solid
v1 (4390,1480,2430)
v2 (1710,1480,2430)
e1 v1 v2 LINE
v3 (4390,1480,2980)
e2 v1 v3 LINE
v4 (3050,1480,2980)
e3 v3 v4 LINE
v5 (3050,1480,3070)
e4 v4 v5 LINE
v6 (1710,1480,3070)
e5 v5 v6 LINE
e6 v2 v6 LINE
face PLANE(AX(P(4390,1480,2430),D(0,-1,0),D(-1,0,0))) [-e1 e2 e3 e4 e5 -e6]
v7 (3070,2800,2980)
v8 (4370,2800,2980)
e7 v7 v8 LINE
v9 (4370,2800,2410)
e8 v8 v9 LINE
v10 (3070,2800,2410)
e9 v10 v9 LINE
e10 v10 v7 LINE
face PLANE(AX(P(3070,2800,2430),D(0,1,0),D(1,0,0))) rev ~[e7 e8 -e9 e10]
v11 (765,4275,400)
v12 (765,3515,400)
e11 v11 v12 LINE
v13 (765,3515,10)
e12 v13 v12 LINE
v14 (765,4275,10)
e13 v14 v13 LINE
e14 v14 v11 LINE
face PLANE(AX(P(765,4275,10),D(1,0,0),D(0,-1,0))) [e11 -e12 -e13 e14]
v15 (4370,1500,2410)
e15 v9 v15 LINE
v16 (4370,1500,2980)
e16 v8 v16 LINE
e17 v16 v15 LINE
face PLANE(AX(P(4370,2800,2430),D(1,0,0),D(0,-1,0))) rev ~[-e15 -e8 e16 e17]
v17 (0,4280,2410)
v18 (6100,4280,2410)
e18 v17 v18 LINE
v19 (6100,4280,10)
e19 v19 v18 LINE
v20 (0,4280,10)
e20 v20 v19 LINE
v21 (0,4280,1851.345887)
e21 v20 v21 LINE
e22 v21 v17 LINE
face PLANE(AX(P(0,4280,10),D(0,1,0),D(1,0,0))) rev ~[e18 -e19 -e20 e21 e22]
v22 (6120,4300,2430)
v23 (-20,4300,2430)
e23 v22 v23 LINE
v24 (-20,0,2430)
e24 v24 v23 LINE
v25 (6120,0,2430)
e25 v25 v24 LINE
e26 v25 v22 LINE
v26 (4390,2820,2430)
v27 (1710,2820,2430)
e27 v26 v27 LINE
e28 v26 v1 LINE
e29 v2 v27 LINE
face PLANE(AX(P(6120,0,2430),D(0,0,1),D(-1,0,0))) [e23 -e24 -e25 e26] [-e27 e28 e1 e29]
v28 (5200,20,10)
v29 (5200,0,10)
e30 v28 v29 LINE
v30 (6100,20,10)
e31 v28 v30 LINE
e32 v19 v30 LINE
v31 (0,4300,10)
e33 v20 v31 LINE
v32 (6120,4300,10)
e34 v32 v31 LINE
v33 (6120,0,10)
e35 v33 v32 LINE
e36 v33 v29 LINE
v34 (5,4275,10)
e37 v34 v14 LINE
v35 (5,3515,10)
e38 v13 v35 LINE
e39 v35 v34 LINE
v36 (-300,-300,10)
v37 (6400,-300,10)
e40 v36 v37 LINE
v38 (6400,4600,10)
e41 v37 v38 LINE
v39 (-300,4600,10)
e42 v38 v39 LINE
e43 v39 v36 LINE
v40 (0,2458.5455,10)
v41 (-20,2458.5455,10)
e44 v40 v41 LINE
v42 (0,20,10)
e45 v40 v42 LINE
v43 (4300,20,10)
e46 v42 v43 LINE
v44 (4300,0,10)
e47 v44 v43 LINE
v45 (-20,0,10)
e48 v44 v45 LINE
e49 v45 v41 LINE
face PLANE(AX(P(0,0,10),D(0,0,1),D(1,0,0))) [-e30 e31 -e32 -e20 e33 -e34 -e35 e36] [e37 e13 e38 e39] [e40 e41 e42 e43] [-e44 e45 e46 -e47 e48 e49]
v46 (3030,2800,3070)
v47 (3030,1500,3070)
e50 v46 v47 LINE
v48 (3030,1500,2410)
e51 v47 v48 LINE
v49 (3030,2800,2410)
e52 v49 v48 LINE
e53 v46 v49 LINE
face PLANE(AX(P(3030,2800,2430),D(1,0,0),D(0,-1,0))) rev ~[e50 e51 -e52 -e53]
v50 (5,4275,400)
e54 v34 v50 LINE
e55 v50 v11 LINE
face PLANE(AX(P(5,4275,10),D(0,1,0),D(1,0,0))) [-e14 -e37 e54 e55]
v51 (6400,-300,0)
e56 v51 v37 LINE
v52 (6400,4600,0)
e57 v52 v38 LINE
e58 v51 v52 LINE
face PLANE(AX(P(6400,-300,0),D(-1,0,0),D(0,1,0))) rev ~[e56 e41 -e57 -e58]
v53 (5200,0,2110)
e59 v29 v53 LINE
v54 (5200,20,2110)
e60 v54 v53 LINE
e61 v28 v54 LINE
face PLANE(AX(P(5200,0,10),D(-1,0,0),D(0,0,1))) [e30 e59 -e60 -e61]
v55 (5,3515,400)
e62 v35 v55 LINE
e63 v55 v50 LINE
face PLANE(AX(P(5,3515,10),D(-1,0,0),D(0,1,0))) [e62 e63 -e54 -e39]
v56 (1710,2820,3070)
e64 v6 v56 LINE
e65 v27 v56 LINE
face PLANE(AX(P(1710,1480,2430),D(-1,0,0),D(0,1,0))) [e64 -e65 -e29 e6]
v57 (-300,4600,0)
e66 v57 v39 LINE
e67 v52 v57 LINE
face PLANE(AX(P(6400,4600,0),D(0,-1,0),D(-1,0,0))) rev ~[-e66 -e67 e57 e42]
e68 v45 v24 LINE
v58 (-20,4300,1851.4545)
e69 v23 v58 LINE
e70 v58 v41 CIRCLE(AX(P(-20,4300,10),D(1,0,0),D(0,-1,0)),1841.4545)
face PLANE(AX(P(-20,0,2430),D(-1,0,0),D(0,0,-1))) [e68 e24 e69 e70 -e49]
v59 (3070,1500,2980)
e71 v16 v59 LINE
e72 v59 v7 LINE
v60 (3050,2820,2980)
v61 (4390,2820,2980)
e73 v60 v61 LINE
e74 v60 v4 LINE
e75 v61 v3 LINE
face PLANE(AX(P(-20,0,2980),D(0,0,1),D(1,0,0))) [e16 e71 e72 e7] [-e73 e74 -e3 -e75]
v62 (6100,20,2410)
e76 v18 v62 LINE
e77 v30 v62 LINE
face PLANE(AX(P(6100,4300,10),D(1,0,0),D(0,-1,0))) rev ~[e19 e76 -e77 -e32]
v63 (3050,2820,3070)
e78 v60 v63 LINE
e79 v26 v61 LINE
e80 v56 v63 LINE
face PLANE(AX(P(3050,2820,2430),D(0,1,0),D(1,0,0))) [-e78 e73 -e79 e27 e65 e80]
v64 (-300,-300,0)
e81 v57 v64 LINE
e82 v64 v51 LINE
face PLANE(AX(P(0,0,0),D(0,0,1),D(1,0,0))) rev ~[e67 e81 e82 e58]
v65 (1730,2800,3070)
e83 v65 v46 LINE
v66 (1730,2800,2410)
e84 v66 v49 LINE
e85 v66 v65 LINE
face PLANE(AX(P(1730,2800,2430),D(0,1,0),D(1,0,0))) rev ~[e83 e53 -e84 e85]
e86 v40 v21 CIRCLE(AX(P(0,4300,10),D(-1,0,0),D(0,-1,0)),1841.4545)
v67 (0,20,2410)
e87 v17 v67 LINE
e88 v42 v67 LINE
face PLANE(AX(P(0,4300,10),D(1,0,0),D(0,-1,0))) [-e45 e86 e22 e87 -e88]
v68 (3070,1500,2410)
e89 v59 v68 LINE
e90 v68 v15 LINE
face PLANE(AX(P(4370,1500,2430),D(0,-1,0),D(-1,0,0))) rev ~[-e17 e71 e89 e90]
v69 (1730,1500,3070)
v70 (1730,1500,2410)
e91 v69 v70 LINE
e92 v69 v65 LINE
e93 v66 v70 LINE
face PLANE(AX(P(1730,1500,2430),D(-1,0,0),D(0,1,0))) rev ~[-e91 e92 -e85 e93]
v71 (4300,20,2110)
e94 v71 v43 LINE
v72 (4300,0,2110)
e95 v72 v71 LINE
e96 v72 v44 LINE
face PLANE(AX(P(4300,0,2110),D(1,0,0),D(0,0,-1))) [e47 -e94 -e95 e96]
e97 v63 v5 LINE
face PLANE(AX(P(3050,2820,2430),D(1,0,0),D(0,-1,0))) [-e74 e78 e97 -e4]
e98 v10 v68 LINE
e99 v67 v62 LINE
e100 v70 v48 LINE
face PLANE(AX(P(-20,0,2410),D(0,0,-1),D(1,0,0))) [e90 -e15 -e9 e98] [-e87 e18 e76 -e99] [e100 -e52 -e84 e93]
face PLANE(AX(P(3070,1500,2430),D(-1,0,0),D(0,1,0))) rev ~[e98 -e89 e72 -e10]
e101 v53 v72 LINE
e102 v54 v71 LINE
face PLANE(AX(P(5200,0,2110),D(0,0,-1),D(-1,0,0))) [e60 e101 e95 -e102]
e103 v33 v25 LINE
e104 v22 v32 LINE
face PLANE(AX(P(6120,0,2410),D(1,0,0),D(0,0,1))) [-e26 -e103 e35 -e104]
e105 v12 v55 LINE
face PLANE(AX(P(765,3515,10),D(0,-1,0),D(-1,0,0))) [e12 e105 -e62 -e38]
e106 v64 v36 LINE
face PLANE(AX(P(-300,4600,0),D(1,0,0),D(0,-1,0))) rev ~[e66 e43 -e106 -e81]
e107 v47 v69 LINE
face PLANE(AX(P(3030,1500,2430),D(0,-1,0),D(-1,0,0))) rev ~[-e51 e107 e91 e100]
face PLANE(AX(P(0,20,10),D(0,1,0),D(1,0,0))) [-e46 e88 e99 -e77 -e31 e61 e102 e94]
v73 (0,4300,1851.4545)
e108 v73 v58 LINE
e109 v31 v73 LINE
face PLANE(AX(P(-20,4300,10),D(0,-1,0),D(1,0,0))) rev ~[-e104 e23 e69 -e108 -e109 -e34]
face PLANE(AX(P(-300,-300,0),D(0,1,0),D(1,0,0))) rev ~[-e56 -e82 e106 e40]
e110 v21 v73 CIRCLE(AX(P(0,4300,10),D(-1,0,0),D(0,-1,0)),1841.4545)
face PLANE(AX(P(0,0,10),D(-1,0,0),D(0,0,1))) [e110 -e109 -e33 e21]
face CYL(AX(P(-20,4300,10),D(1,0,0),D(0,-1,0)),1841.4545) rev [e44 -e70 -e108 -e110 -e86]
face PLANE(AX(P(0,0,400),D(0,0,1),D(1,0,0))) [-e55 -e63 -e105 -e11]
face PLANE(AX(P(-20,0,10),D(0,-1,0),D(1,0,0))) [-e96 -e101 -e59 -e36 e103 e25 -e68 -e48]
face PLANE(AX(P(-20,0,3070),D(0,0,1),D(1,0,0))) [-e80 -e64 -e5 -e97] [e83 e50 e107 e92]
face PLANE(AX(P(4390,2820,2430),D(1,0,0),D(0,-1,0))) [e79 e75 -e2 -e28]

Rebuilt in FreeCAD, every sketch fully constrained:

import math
import FreeCAD as App
import Part
import Sketcher
from FreeCAD import Vector
Q = App.Units.Quantity


def add_polygon(sketch, points):
    """Adds a closed chain of lines whose ends are joined by coincident constraints."""
    first, n = sketch.GeometryCount, len(points)
    for a, b in zip(points, points[1:] + points[:1]):
        sketch.addGeometry(Part.LineSegment(App.Vector(*a, 0), App.Vector(*b, 0)), False)
    for i in range(n):
        sketch.addConstraint(Sketcher.Constraint("Coincident", first + i, 2, first + (i + 1) % n, 1))

doc = App.newDocument("Part")
body = doc.addObject("PartDesign::Body", "Body")

# Sketch on XY plane
sketch1 = body.newObject("Sketcher::SketchObject", "Sketch")
sketch1.AttachmentSupport = (doc.getObject("XY_Plane"), [""])
sketch1.MapMode = "FlatFace"
add_polygon(sketch1, [(-300, 4600), (-300, -300), (6400, -300), (6400, 4600)])  # lines 0-3
sketch1.addConstraint([
    Sketcher.Constraint("Vertical", 0),
    Sketcher.Constraint("Horizontal", 1),
    Sketcher.Constraint("Vertical", 2),
    Sketcher.Constraint("Horizontal", 3),
    Sketcher.Constraint("DistanceX", 1, 1, 1, 2, Q("6700 mm")),
    Sketcher.Constraint("DistanceY", 0, 2, 0, 1, Q("4900 mm")),
    Sketcher.Constraint("DistanceX", 0, 2, -1, 1, Q("300 mm")),
    Sketcher.Constraint("DistanceY", 0, 2, -1, 1, Q("300 mm")),
])
pad1 = body.newObject("PartDesign::Pad", "Pad")
pad1.Profile = sketch1
pad1.Length = 10

# Sketch on XY plane
sketch2 = body.newObject("Sketcher::SketchObject", "Sketch001")
sketch2.AttachmentSupport = (doc.getObject("XY_Plane"), [""])
sketch2.MapMode = "FlatFace"
sketch2.AttachmentOffset = App.Placement(Vector(0, 0, 10), App.Rotation())
add_polygon(sketch2, [(0, 4300), (-20, 4300), (-20, 0), (0, 0)])  # lines 0-3
sketch2.addConstraint([
    Sketcher.Constraint("Horizontal", 0),
    Sketcher.Constraint("Vertical", 1),
    Sketcher.Constraint("Horizontal", 2),
    Sketcher.Constraint("Vertical", 3),
    Sketcher.Constraint("Coincident", 2, 2, -1, 1),
    Sketcher.Constraint("DistanceX", 0, 2, 0, 1, Q("20 mm")),
    Sketcher.Constraint("DistanceY", 1, 2, 1, 1, Q("4300 mm")),
])
pad2 = body.newObject("PartDesign::Pad", "Pad001")
pad2.Profile = sketch2
pad2.Length = 2400

# Sketch on XY plane
sketch3 = body.newObject("Sketcher::SketchObject", "Sketch002")
sketch3.AttachmentSupport = (doc.getObject("XY_Plane"), [""])
sketch3.MapMode = "FlatFace"
sketch3.AttachmentOffset = App.Placement(Vector(0, 0, 10), App.Rotation())
add_polygon(sketch3, [(6100, 20), (0, 20), (0, 0), (6100, 0)])  # lines 0-3
sketch3.addConstraint([
    Sketcher.Constraint("Horizontal", 0),
    Sketcher.Constraint("Vertical", 1),
    Sketcher.Constraint("Horizontal", 2),
    Sketcher.Constraint("Vertical", 3),
    Sketcher.Constraint("Coincident", 1, 2, -1, 1),
    Sketcher.Constraint("DistanceX", 0, 2, 0, 1, Q("6100 mm")),
    Sketcher.Constraint("DistanceY", 1, 2, 1, 1, Q("20 mm")),
])
pad3 = body.newObject("PartDesign::Pad", "Pad002")
pad3.Profile = sketch3
pad3.Length = 2400

# Sketch on XY plane
sketch4 = body.newObject("Sketcher::SketchObject", "Sketch003")
sketch4.AttachmentSupport = (doc.getObject("XY_Plane"), [""])
sketch4.MapMode = "FlatFace"
sketch4.AttachmentOffset = App.Placement(Vector(0, 0, 10), App.Rotation())
add_polygon(sketch4, [(6100, 4300), (6100, 0), (6120, 0), (6120, 4300)])  # lines 0-3
sketch4.addConstraint([
    Sketcher.Constraint("Vertical", 0),
    Sketcher.Constraint("Horizontal", 1),
    Sketcher.Constraint("Vertical", 2),
    Sketcher.Constraint("Horizontal", 3),
    Sketcher.Constraint("PointOnObject", 0, 2, -1),
    Sketcher.Constraint("DistanceX", 1, 1, 1, 2, Q("20 mm")),
    Sketcher.Constraint("DistanceY", 0, 2, 0, 1, Q("4300 mm")),
    Sketcher.Constraint("DistanceX", -1, 1, 0, 2, Q("6100 mm")),
])
pad4 = body.newObject("PartDesign::Pad", "Pad003")
pad4.Profile = sketch4
pad4.Length = 2400

# Sketch on XY plane
sketch5 = body.newObject("Sketcher::SketchObject", "Sketch004")
sketch5.AttachmentSupport = (doc.getObject("XY_Plane"), [""])
sketch5.MapMode = "FlatFace"
sketch5.AttachmentOffset = App.Placement(Vector(0, 0, 10), App.Rotation())
add_polygon(sketch5, [(6120, 4300), (0, 4300), (0, 4280), (6120, 4280)])  # lines 0-3
sketch5.addConstraint([
    Sketcher.Constraint("Horizontal", 0),
    Sketcher.Constraint("Vertical", 1),
    Sketcher.Constraint("Horizontal", 2),
    Sketcher.Constraint("Vertical", 3),
    Sketcher.Constraint("PointOnObject", 0, 2, -2),
    Sketcher.Constraint("DistanceY", 1, 2, 1, 1, Q("20 mm")),
    Sketcher.Constraint("DistanceX", 0, 2, 0, 1, Q("6120 mm")),
    Sketcher.Constraint("DistanceY", -1, 1, 0, 2, Q("4300 mm")),
])
pad5 = body.newObject("PartDesign::Pad", "Pad004")
pad5.Profile = sketch5
pad5.Length = 2400

# Sketch on XZ plane
sketch6 = body.newObject("Sketcher::SketchObject", "Sketch005")
sketch6.AttachmentSupport = (doc.getObject("XZ_Plane"), [""])
sketch6.MapMode = "FlatFace"
add_polygon(sketch6, [(4300, 10), (5200, 10), (5200, 2110), (4300, 2110)])  # lines 0-3
sketch6.addConstraint([
    Sketcher.Constraint("Horizontal", 0),
    Sketcher.Constraint("Vertical", 1),
    Sketcher.Constraint("Horizontal", 2),
    Sketcher.Constraint("Vertical", 3),
    Sketcher.Constraint("DistanceX", 0, 1, 0, 2, Q("900 mm")),
    Sketcher.Constraint("DistanceY", 1, 1, 1, 2, Q("2100 mm")),
    Sketcher.Constraint("DistanceX", -1, 1, 2, 2, Q("4300 mm")),
    Sketcher.Constraint("DistanceY", -1, 1, 0, 2, Q("10 mm")),
])
pocket1 = body.newObject("PartDesign::Pocket", "Pocket")
pocket1.Profile = sketch6
pocket1.Length = 40
pocket1.Midplane = True

# Sketch on XY plane
sketch7 = body.newObject("Sketcher::SketchObject", "Sketch006")
sketch7.AttachmentSupport = (doc.getObject("XY_Plane"), [""])
sketch7.MapMode = "FlatFace"
sketch7.AttachmentOffset = App.Placement(Vector(0, 0, 10), App.Rotation())
add_polygon(sketch7, [(765, 4275), (5, 4275), (5, 3515), (765, 3515)])  # lines 0-3
sketch7.addConstraint([
    Sketcher.Constraint("Horizontal", 0),
    Sketcher.Constraint("Vertical", 1),
    Sketcher.Constraint("Horizontal", 2),
    Sketcher.Constraint("Vertical", 3),
    Sketcher.Constraint("Equal", 2, 1),
    Sketcher.Constraint("DistanceX", 0, 2, 0, 1, Q("760 mm")),
    Sketcher.Constraint("DistanceX", -1, 1, 0, 2, Q("5 mm")),
    Sketcher.Constraint("DistanceY", -1, 1, 0, 2, Q("4275 mm")),
])
pad6 = body.newObject("PartDesign::Pad", "Pad005")
pad6.Profile = sketch7
pad6.Length = 390

# Sketch on XZ plane
sketch8 = body.newObject("Sketcher::SketchObject", "Sketch007")
sketch8.AttachmentSupport = (doc.getObject("XZ_Plane"), [""])
sketch8.MapMode = "FlatFace"
add_polygon(sketch8, [(-20, 2430), (-20, 2410), (6120, 2410), (6120, 2430)])  # lines 0-3
sketch8.addConstraint([
    Sketcher.Constraint("Vertical", 0),
    Sketcher.Constraint("Horizontal", 1),
    Sketcher.Constraint("Vertical", 2),
    Sketcher.Constraint("Horizontal", 3),
    Sketcher.Constraint("DistanceY", 0, 2, 0, 1, Q("20 mm")),
    Sketcher.Constraint("DistanceX", 0, 2, -1, 1, Q("20 mm")),
    Sketcher.Constraint("DistanceX", 1, 1, 1, 2, Q("6140 mm")),
    Sketcher.Constraint("DistanceY", -1, 1, 0, 2, Q("2410 mm")),
])
pad7 = body.newObject("PartDesign::Pad", "Pad006")
pad7.Profile = sketch8
pad7.Length = 4300
pad7.Reversed = True

# Sketch on XY plane
sketch9 = body.newObject("Sketcher::SketchObject", "Sketch008")
sketch9.AttachmentSupport = (doc.getObject("XY_Plane"), [""])
sketch9.MapMode = "FlatFace"
sketch9.AttachmentOffset = App.Placement(Vector(0, 0, 2430), App.Rotation())
add_polygon(sketch9, [(3050, 2820), (1710, 2820), (1710, 1480), (3050, 1480)])  # lines 0-3
add_polygon(sketch9, [(1730, 1500), (1730, 2800), (3030, 2800), (3030, 1500)])  # lines 4-7
sketch9.addConstraint([
    Sketcher.Constraint("Horizontal", 0),
    Sketcher.Constraint("Vertical", 1),
    Sketcher.Constraint("Horizontal", 2),
    Sketcher.Constraint("Vertical", 3),
    Sketcher.Constraint("Vertical", 4),
    Sketcher.Constraint("Horizontal", 5),
    Sketcher.Constraint("Vertical", 6),
    Sketcher.Constraint("Horizontal", 7),
    Sketcher.Constraint("Equal", 2, 1),
    Sketcher.Constraint("Equal", 7, 4),
    Sketcher.Constraint("DistanceX", 5, 1, 5, 2, Q("1300 mm")),
    Sketcher.Constraint("DistanceY", -1, 1, 6, 2, Q("1500 mm")),
    Sketcher.Constraint("DistanceX", 0, 2, 4, 2, Q("20 mm")),
    Sketcher.Constraint("DistanceY", 4, 2, 0, 2, Q("20 mm")),
    Sketcher.Constraint("DistanceX", 5, 2, 3, 2, Q("20 mm")),
    Sketcher.Constraint("DistanceX", -1, 1, 0, 2, Q("1710 mm")),
])
pad8 = body.newObject("PartDesign::Pad", "Pad007")
pad8.Profile = sketch9
pad8.Length = 640

# Sketch on XY plane
sketch10 = body.newObject("Sketcher::SketchObject", "Sketch009")
sketch10.AttachmentSupport = (doc.getObject("XY_Plane"), [""])
sketch10.MapMode = "FlatFace"
sketch10.AttachmentOffset = App.Placement(Vector(0, 0, 2430), App.Rotation())
add_polygon(sketch10, [(1730, 1500), (3030, 1500), (3030, 2800), (1730, 2800)])  # lines 0-3
sketch10.addConstraint([
    Sketcher.Constraint("Horizontal", 0),
    Sketcher.Constraint("Vertical", 1),
    Sketcher.Constraint("Horizontal", 2),
    Sketcher.Constraint("Vertical", 3),
    Sketcher.Constraint("Equal", 2, 1),
    Sketcher.Constraint("DistanceX", 0, 1, 0, 2, Q("1300 mm")),
    Sketcher.Constraint("DistanceX", -1, 1, 0, 2, Q("3030 mm")),
    Sketcher.Constraint("DistanceY", -1, 1, 0, 2, Q("1500 mm")),
])
pocket2 = body.newObject("PartDesign::Pocket", "Pocket001")
pocket2.Profile = sketch10
pocket2.Length = 40

# Sketch on XY plane
sketch11 = body.newObject("Sketcher::SketchObject", "Sketch010")
sketch11.AttachmentSupport = (doc.getObject("XY_Plane"), [""])
sketch11.MapMode = "FlatFace"
sketch11.AttachmentOffset = App.Placement(Vector(0, 0, 2430), App.Rotation())
add_polygon(sketch11, [(4390, 2820), (3050, 2820), (3050, 1480), (4390, 1480)])  # lines 0-3
add_polygon(sketch11, [(3070, 1500), (3070, 2800), (4370, 2800), (4370, 1500)])  # lines 4-7
sketch11.addConstraint([
    Sketcher.Constraint("Horizontal", 0),
    Sketcher.Constraint("Vertical", 1),
    Sketcher.Constraint("Horizontal", 2),
    Sketcher.Constraint("Vertical", 3),
    Sketcher.Constraint("Vertical", 4),
    Sketcher.Constraint("Horizontal", 5),
    Sketcher.Constraint("Vertical", 6),
    Sketcher.Constraint("Horizontal", 7),
    Sketcher.Constraint("Equal", 2, 1),
    Sketcher.Constraint("Equal", 7, 4),
    Sketcher.Constraint("DistanceX", 0, 2, 0, 1, Q("1340 mm")),
    Sketcher.Constraint("DistanceX", 0, 2, 4, 2, Q("20 mm")),
    Sketcher.Constraint("DistanceY", 4, 2, 0, 2, Q("20 mm")),
    Sketcher.Constraint("DistanceX", 5, 2, 3, 2, Q("20 mm")),
    Sketcher.Constraint("DistanceX", -1, 1, 0, 2, Q("3050 mm")),
    Sketcher.Constraint("DistanceY", -1, 1, 0, 2, Q("2820 mm")),
])
pad9 = body.newObject("PartDesign::Pad", "Pad008")
pad9.Profile = sketch11
pad9.Length = 550

# Sketch on XY plane
sketch12 = body.newObject("Sketcher::SketchObject", "Sketch011")
sketch12.AttachmentSupport = (doc.getObject("XY_Plane"), [""])
sketch12.MapMode = "FlatFace"
sketch12.AttachmentOffset = App.Placement(Vector(0, 0, 2430), App.Rotation())
add_polygon(sketch12, [(3070, 1500), (4370, 1500), (4370, 2800), (3070, 2800)])  # lines 0-3
sketch12.addConstraint([
    Sketcher.Constraint("Horizontal", 0),
    Sketcher.Constraint("Vertical", 1),
    Sketcher.Constraint("Horizontal", 2),
    Sketcher.Constraint("Vertical", 3),
    Sketcher.Constraint("Equal", 2, 1),
    Sketcher.Constraint("DistanceX", 0, 1, 0, 2, Q("1300 mm")),
    Sketcher.Constraint("DistanceX", -1, 1, 0, 2, Q("4370 mm")),
    Sketcher.Constraint("DistanceY", -1, 1, 0, 2, Q("1500 mm")),
])
pocket3 = body.newObject("PartDesign::Pocket", "Pocket002")
pocket3.Profile = sketch12
pocket3.Length = 40

# Sketch on YZ plane
sketch13 = body.newObject("Sketcher::SketchObject", "Sketch012")
sketch13.AttachmentSupport = (doc.getObject("YZ_Plane"), [""])
sketch13.MapMode = "FlatFace"
sketch13.AttachmentOffset = App.Placement(Vector(0, 0, -20), App.Rotation())
sketch13.addGeometry([
    Part.LineSegment(Vector(4300, 10, 0), Vector(2459, 10, 0)),
    Part.ArcOfCircle(Part.Circle(Vector(4300, 10, 0), Vector(0, 0, 1), 1841), math.radians(90), math.radians(180)),
    Part.LineSegment(Vector(4300, 1851, 0), Vector(4300, 10, 0)),
], False)
sketch13.addConstraint([
    Sketcher.Constraint("Coincident", 0, 2, 1, 2),
    Sketcher.Constraint("Coincident", 1, 1, 2, 1),
    Sketcher.Constraint("Coincident", 2, 2, 0, 1),
    Sketcher.Constraint("Horizontal", 0),
    Sketcher.Constraint("Vertical", 2),
    Sketcher.Constraint("Coincident", 2, 2, 1, 3),
    Sketcher.Constraint("DistanceX", -1, 1, 1, 3, Q("4300 mm")),
    Sketcher.Constraint("DistanceY", -1, 1, 1, 3, Q("10 mm")),
    Sketcher.Constraint("Radius", 1, Q("1841.4545 mm")),
])
pocket4 = body.newObject("PartDesign::Pocket", "Pocket003")
pocket4.Profile = sketch13
pocket4.Length = 40
pocket4.Midplane = True

doc.recompute()
